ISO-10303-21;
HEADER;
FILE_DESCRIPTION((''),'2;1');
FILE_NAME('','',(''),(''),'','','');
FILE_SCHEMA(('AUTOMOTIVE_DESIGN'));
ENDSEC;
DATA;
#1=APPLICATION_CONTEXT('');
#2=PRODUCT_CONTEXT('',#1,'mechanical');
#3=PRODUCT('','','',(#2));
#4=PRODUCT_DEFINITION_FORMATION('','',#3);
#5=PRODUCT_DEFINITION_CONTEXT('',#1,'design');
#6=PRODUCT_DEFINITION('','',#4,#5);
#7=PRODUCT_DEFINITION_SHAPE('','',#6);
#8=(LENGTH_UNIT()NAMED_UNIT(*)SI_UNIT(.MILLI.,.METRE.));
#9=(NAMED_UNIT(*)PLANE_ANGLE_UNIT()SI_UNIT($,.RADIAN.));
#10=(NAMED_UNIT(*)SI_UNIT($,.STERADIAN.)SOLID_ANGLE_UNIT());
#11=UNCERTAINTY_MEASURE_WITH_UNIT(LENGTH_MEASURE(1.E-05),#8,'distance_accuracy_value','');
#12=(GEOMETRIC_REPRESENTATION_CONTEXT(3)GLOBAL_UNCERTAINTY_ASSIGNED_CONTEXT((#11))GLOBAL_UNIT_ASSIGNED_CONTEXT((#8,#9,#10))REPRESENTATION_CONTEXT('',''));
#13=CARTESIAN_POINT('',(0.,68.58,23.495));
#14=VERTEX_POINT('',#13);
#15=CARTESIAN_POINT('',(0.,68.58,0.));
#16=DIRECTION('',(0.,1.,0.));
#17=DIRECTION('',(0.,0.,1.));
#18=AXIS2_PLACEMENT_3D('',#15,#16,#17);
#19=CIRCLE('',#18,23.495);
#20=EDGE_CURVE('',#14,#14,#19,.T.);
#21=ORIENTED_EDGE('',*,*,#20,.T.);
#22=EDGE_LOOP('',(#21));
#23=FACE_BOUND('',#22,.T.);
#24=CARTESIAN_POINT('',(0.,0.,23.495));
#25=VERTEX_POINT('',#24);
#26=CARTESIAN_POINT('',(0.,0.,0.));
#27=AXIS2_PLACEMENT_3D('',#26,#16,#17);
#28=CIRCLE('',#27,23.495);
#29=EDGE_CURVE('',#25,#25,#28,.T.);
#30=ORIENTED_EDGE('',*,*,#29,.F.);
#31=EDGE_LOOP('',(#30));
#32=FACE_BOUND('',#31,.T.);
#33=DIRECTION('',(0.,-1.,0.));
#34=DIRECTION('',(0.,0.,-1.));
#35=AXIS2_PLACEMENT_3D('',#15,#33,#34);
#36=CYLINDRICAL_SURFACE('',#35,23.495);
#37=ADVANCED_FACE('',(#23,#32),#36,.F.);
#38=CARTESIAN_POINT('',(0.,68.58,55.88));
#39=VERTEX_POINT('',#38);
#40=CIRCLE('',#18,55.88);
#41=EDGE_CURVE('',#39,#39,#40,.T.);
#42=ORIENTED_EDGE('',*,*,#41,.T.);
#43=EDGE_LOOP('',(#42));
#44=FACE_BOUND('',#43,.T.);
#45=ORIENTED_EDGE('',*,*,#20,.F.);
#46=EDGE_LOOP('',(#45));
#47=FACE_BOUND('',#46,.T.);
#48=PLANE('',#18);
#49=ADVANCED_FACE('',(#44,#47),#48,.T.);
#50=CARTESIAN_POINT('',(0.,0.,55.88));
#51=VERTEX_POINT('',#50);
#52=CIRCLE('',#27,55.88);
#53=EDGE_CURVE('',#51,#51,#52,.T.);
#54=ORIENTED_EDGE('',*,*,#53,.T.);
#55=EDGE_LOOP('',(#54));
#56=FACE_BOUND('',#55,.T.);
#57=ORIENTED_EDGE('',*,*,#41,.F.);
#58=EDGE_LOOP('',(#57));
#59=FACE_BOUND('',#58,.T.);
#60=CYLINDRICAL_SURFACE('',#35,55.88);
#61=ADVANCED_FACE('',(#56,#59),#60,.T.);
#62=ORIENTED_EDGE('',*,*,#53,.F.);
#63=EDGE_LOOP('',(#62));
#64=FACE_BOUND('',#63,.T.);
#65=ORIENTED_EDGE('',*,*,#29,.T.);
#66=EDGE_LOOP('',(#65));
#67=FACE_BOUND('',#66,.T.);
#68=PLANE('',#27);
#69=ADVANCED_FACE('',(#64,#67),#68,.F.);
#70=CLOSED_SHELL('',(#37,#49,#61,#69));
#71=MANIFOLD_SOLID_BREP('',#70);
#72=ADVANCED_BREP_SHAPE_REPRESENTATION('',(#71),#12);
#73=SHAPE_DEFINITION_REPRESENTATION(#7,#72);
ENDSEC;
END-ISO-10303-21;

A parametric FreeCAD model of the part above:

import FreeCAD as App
import Part
import Sketcher
Q = App.Units.Quantity

doc = App.newDocument("Part")
params = doc.addObject("Spreadsheet::Sheet", "Params")
for row, (alias, value) in enumerate([
    ("sketch1_diameter", "4.4 in"),
    ("sketch1_diameter2", "1.85 in"),
    ("pad1_length", "2.7 in"),
], start=1):
    params.set(f"A{row}", alias)
    params.set(f"B{row}", "=" + value)
    params.setAlias(f"B{row}", alias)

body = doc.addObject("PartDesign::Body", "Body")

# Sketch on XZ plane
sketch1 = body.newObject("Sketcher::SketchObject", "Sketch")
sketch1.AttachmentSupport = (doc.getObject("XZ_Plane"), [""])
sketch1.MapMode = "FlatFace"
sketch1.addGeometry(Part.Circle(App.Vector(0, 0, 0), App.Vector(0, 0, 1), 56), False)
sketch1.addGeometry(Part.Circle(App.Vector(0, 0, 0), App.Vector(0, 0, 1), 23), False)
sketch1.addConstraint(Sketcher.Constraint("Coincident", 0, 3, -1, 1))
sketch1.addConstraint(Sketcher.Constraint("Coincident", 1, 3, -1, 1))
sketch1.addConstraint(Sketcher.Constraint("Diameter", 0, Q("4.4 in")))
sketch1.addConstraint(Sketcher.Constraint("Diameter", 1, Q("1.85 in")))
sketch1.setExpression("Constraints[2]", "Params.sketch1_diameter")
sketch1.setExpression("Constraints[3]", "Params.sketch1_diameter2")
pad1 = body.newObject("PartDesign::Pad", "Pad")
pad1.Profile = sketch1
pad1.setExpression("Length", "Params.pad1_length")
pad1.Reversed = True

doc.recompute()
